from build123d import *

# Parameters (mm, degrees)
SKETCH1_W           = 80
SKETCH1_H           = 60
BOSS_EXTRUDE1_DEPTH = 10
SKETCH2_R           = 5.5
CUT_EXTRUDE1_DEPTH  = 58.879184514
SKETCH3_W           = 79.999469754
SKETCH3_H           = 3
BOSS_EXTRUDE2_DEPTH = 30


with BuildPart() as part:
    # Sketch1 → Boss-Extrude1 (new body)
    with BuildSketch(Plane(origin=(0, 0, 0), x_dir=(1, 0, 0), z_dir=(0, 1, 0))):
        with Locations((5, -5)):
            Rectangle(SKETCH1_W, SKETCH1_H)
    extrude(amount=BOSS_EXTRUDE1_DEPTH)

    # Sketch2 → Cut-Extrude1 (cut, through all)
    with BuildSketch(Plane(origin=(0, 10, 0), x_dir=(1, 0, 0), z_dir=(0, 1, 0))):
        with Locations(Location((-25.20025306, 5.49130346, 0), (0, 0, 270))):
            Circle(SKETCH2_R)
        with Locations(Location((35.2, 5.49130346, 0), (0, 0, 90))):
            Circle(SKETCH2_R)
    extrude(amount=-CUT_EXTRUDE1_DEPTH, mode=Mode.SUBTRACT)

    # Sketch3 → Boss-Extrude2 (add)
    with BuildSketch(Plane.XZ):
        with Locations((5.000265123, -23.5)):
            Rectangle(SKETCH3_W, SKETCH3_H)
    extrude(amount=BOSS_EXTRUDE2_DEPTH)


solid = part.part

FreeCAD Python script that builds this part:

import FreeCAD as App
import Part
import Sketcher
from FreeCAD import Vector
Q = App.Units.Quantity


def add_polygon(sketch, points):
    """Adds a closed chain of lines whose ends are joined by coincident constraints."""
    first, n = sketch.GeometryCount, len(points)
    for a, b in zip(points, points[1:] + points[:1]):
        sketch.addGeometry(Part.LineSegment(App.Vector(*a, 0), App.Vector(*b, 0)), False)
    for i in range(n):
        sketch.addConstraint(Sketcher.Constraint("Coincident", first + i, 2, first + (i + 1) % n, 1))

doc = App.newDocument("Part")
body = doc.addObject("PartDesign::Body", "Body")

sketch1 = body.newObject("Sketcher::SketchObject", "Sketch")
sketch1.AttachmentSupport = (doc.getObject("XZ_Plane"), [""])
sketch1.MapMode = "FlatFace"
add_polygon(sketch1, [(-35, -25), (-35, 35), (45, 35), (45, -25)])
sketch1.addConstraint([
    Sketcher.Constraint("Vertical", 0),
    Sketcher.Constraint("Horizontal", 1),
    Sketcher.Constraint("Vertical", 2),
    Sketcher.Constraint("Horizontal", 3),
    Sketcher.Constraint("DistanceX", 1, 1, 1, 2, Q("80 mm")),
    Sketcher.Constraint("DistanceY", 0, 1, 0, 2, Q("60 mm")),
    Sketcher.Constraint("DistanceX", 0, 2, -1, 1, Q("35 mm")),
    Sketcher.Constraint("DistanceY", -1, 1, 0, 2, Q("35 mm")),
])
pad1 = body.newObject("PartDesign::Pad", "Pad")
pad1.Profile = sketch1
pad1.Length = 10
pad1.Reversed = True

sketch2 = body.newObject("Sketcher::SketchObject", "Sketch001")
sketch2.AttachmentSupport = (doc.getObject("XZ_Plane"), [""])
sketch2.MapMode = "FlatFace"
sketch2.AttachmentOffset = App.Placement(Vector(0, 0, -10), App.Rotation())
sketch2.addGeometry([
    Part.Circle(Vector(-25, -5, 0), Vector(0, 0, 1), 6),
    Part.Circle(Vector(35, -5, 0), Vector(0, 0, 1), 6),
], False)
sketch2.addConstraint([
    Sketcher.Constraint("Equal", 0, 1),
    Sketcher.Constraint("Horizontal", 0, 3, 1, 3),
    Sketcher.Constraint("Diameter", 0, Q("11 mm")),
    Sketcher.Constraint("DistanceX", -1, 1, 1, 3, Q("35.2 mm")),
    Sketcher.Constraint("DistanceX", 0, 3, -1, 1, Q("25.200253 mm")),
    Sketcher.Constraint("DistanceY", 0, 3, -1, 1, Q("5.491303 mm")),
])
pocket1 = body.newObject("PartDesign::Pocket", "Pocket")
pocket1.Profile = sketch2
pocket1.Type = "ThroughAll"
pocket1.Reversed = True

sketch3 = body.newObject("Sketcher::SketchObject", "Sketch002")
sketch3.AttachmentSupport = (doc.getObject("XZ_Plane"), [""])
sketch3.MapMode = "FlatFace"
add_polygon(sketch3, [(-35, -22), (-35, -25), (45, -25), (45, -22)])
sketch3.addConstraint([
    Sketcher.Constraint("Vertical", 0),
    Sketcher.Constraint("Horizontal", 1),
    Sketcher.Constraint("Vertical", 2),
    Sketcher.Constraint("Horizontal", 3),
    Sketcher.Constraint("DistanceY", 0, 2, 0, 1, Q("3 mm")),
    Sketcher.Constraint("DistanceY", 0, 2, -1, 1, Q("25 mm")),
    Sketcher.Constraint("DistanceX", -1, 1, 1, 2, Q("45 mm")),
    Sketcher.Constraint("DistanceX", 1, 1, 1, 2, Q("79.99947 mm")),
])
pad2 = body.newObject("PartDesign::Pad", "Pad001")
pad2.Profile = sketch3
pad2.Length = 30

doc.recompute()
